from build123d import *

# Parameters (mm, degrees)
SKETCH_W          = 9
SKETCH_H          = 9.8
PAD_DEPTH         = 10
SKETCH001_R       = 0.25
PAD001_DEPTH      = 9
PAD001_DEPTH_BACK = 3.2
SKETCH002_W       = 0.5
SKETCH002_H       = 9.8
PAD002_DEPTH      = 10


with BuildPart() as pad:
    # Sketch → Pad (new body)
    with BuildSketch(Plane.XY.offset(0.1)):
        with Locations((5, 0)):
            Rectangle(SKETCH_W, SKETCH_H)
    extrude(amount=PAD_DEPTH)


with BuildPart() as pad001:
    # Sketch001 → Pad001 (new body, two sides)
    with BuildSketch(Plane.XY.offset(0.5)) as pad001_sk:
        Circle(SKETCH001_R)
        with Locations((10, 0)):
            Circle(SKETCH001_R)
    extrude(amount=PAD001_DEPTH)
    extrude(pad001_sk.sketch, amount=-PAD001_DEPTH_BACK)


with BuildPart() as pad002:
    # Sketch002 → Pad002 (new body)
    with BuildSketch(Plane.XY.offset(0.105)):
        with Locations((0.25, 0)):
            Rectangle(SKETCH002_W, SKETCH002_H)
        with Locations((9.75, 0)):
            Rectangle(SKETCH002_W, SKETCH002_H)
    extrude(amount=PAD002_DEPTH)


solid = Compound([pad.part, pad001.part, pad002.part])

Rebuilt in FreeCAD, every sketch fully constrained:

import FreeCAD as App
import Part
import Sketcher

V = App.Vector


def add_polygon(sketch, points):
    """Adds a closed chain of lines whose ends are joined by coincident constraints."""
    first, n = sketch.GeometryCount, len(points)
    for a, b in zip(points, points[1:] + points[:1]):
        sketch.addGeometry(Part.LineSegment(App.Vector(*a, 0), App.Vector(*b, 0)), False)
    for i in range(n):
        sketch.addConstraint(Sketcher.Constraint("Coincident", first + i, 2, first + (i + 1) % n, 1))

doc = App.newDocument("Part")
body = doc.addObject("PartDesign::Body", "Body")

sketch1 = doc.addObject("Sketcher::SketchObject", "Sketch")
body.addObject(sketch1)
sketch1.AttachmentSupport = (doc.XY_Plane, [""])
sketch1.MapMode = "FlatFace"
sketch1.AttachmentOffset = App.Placement(V(0, 0, 0.1), App.Rotation())
add_polygon(sketch1, [(0.5, 4.9), (0.5, -4.9), (9.5, -4.9), (9.5, 4.9)])
sketch1.addConstraint([
    Sketcher.Constraint("Vertical", 0),
    Sketcher.Constraint("Horizontal", 1),
    Sketcher.Constraint("Vertical", 2),
    Sketcher.Constraint("Horizontal", 3),
    Sketcher.Constraint("DistanceX", 1, 1, 1, 2, 9.0),
    Sketcher.Constraint("DistanceY", 0, 2, 0, 1, 9.8),
    Sketcher.Constraint("DistanceX", -1, 1, 0, 2, 0.5),
    Sketcher.Constraint("DistanceY", 0, 2, -1, 1, 4.9),
])
pad1 = doc.addObject("PartDesign::Pad", "Pad")
body.addObject(pad1)
pad1.Profile = sketch1
pad1.Length = 10
body2 = doc.addObject("PartDesign::Body", "Body001")
body2.AllowCompound = True

sketch2 = doc.addObject("Sketcher::SketchObject", "Sketch001")
body2.addObject(sketch2)
sketch2.AttachmentSupport = (doc.getObject("XY_Plane001"), [""])
sketch2.MapMode = "FlatFace"
sketch2.AttachmentOffset = App.Placement(V(0, 0, 0.5), App.Rotation())
sketch2.addGeometry([
    Part.Circle(V(0, 0, 0), V(0, 0, 1), 0.25),
    Part.Circle(V(10, 0, 0), V(0, 0, 1), 0.25),
], False)
sketch2.addConstraint([
    Sketcher.Constraint("Coincident", 0, 3, -1, 1),
    Sketcher.Constraint("Equal", 0, 1),
    Sketcher.Constraint("PointOnObject", 1, 3, -1),
    Sketcher.Constraint("Diameter", 0, 0.5),
    Sketcher.Constraint("DistanceX", -1, 1, 1, 3, 10.0),
])
pad2 = doc.addObject("PartDesign::Pad", "Pad001")
body2.addObject(pad2)
pad2.Profile = sketch2
pad2.Type = "TwoLengths"
pad2.Length = 9
pad2.Length2 = 3.2
body3 = doc.addObject("PartDesign::Body", "Body002")
body3.AllowCompound = True

sketch3 = doc.addObject("Sketcher::SketchObject", "Sketch002")
body3.addObject(sketch3)
sketch3.AttachmentSupport = (doc.getObject("XY_Plane002"), [""])
sketch3.MapMode = "FlatFace"
sketch3.AttachmentOffset = App.Placement(V(0, 0, 0.105), App.Rotation())
add_polygon(sketch3, [(0, 4.9), (0, -4.9), (0.5, -4.9), (0.5, 4.9)])
add_polygon(sketch3, [(9.5, 4.9), (9.5, -4.9), (10, -4.9), (10, 4.9)])
sketch3.addConstraint([
    Sketcher.Constraint("Vertical", 0),
    Sketcher.Constraint("Horizontal", 1),
    Sketcher.Constraint("Vertical", 2),
    Sketcher.Constraint("Horizontal", 3),
    Sketcher.Constraint("Vertical", 4),
    Sketcher.Constraint("Horizontal", 5),
    Sketcher.Constraint("Vertical", 6),
    Sketcher.Constraint("Horizontal", 7),
    Sketcher.Constraint("Symmetric", 0, 2, 3, 2, -1, 1),
    Sketcher.Constraint("Horizontal", 1, 2, 4, 2),
    Sketcher.Constraint("Horizontal", 3, 2, 6, 2),
    Sketcher.Constraint("Equal", 3, 5),
    Sketcher.Constraint("DistanceX", 1, 1, 1, 2, 0.5),
    Sketcher.Constraint("DistanceY", 0, 2, 0, 1, 9.8),
    Sketcher.Constraint("DistanceX", -1, 1, 5, 2, 10.0),
])
pad3 = doc.addObject("PartDesign::Pad", "Pad002")
body3.addObject(pad3)
pad3.Profile = sketch3
pad3.Length = 10

doc.recompute()
